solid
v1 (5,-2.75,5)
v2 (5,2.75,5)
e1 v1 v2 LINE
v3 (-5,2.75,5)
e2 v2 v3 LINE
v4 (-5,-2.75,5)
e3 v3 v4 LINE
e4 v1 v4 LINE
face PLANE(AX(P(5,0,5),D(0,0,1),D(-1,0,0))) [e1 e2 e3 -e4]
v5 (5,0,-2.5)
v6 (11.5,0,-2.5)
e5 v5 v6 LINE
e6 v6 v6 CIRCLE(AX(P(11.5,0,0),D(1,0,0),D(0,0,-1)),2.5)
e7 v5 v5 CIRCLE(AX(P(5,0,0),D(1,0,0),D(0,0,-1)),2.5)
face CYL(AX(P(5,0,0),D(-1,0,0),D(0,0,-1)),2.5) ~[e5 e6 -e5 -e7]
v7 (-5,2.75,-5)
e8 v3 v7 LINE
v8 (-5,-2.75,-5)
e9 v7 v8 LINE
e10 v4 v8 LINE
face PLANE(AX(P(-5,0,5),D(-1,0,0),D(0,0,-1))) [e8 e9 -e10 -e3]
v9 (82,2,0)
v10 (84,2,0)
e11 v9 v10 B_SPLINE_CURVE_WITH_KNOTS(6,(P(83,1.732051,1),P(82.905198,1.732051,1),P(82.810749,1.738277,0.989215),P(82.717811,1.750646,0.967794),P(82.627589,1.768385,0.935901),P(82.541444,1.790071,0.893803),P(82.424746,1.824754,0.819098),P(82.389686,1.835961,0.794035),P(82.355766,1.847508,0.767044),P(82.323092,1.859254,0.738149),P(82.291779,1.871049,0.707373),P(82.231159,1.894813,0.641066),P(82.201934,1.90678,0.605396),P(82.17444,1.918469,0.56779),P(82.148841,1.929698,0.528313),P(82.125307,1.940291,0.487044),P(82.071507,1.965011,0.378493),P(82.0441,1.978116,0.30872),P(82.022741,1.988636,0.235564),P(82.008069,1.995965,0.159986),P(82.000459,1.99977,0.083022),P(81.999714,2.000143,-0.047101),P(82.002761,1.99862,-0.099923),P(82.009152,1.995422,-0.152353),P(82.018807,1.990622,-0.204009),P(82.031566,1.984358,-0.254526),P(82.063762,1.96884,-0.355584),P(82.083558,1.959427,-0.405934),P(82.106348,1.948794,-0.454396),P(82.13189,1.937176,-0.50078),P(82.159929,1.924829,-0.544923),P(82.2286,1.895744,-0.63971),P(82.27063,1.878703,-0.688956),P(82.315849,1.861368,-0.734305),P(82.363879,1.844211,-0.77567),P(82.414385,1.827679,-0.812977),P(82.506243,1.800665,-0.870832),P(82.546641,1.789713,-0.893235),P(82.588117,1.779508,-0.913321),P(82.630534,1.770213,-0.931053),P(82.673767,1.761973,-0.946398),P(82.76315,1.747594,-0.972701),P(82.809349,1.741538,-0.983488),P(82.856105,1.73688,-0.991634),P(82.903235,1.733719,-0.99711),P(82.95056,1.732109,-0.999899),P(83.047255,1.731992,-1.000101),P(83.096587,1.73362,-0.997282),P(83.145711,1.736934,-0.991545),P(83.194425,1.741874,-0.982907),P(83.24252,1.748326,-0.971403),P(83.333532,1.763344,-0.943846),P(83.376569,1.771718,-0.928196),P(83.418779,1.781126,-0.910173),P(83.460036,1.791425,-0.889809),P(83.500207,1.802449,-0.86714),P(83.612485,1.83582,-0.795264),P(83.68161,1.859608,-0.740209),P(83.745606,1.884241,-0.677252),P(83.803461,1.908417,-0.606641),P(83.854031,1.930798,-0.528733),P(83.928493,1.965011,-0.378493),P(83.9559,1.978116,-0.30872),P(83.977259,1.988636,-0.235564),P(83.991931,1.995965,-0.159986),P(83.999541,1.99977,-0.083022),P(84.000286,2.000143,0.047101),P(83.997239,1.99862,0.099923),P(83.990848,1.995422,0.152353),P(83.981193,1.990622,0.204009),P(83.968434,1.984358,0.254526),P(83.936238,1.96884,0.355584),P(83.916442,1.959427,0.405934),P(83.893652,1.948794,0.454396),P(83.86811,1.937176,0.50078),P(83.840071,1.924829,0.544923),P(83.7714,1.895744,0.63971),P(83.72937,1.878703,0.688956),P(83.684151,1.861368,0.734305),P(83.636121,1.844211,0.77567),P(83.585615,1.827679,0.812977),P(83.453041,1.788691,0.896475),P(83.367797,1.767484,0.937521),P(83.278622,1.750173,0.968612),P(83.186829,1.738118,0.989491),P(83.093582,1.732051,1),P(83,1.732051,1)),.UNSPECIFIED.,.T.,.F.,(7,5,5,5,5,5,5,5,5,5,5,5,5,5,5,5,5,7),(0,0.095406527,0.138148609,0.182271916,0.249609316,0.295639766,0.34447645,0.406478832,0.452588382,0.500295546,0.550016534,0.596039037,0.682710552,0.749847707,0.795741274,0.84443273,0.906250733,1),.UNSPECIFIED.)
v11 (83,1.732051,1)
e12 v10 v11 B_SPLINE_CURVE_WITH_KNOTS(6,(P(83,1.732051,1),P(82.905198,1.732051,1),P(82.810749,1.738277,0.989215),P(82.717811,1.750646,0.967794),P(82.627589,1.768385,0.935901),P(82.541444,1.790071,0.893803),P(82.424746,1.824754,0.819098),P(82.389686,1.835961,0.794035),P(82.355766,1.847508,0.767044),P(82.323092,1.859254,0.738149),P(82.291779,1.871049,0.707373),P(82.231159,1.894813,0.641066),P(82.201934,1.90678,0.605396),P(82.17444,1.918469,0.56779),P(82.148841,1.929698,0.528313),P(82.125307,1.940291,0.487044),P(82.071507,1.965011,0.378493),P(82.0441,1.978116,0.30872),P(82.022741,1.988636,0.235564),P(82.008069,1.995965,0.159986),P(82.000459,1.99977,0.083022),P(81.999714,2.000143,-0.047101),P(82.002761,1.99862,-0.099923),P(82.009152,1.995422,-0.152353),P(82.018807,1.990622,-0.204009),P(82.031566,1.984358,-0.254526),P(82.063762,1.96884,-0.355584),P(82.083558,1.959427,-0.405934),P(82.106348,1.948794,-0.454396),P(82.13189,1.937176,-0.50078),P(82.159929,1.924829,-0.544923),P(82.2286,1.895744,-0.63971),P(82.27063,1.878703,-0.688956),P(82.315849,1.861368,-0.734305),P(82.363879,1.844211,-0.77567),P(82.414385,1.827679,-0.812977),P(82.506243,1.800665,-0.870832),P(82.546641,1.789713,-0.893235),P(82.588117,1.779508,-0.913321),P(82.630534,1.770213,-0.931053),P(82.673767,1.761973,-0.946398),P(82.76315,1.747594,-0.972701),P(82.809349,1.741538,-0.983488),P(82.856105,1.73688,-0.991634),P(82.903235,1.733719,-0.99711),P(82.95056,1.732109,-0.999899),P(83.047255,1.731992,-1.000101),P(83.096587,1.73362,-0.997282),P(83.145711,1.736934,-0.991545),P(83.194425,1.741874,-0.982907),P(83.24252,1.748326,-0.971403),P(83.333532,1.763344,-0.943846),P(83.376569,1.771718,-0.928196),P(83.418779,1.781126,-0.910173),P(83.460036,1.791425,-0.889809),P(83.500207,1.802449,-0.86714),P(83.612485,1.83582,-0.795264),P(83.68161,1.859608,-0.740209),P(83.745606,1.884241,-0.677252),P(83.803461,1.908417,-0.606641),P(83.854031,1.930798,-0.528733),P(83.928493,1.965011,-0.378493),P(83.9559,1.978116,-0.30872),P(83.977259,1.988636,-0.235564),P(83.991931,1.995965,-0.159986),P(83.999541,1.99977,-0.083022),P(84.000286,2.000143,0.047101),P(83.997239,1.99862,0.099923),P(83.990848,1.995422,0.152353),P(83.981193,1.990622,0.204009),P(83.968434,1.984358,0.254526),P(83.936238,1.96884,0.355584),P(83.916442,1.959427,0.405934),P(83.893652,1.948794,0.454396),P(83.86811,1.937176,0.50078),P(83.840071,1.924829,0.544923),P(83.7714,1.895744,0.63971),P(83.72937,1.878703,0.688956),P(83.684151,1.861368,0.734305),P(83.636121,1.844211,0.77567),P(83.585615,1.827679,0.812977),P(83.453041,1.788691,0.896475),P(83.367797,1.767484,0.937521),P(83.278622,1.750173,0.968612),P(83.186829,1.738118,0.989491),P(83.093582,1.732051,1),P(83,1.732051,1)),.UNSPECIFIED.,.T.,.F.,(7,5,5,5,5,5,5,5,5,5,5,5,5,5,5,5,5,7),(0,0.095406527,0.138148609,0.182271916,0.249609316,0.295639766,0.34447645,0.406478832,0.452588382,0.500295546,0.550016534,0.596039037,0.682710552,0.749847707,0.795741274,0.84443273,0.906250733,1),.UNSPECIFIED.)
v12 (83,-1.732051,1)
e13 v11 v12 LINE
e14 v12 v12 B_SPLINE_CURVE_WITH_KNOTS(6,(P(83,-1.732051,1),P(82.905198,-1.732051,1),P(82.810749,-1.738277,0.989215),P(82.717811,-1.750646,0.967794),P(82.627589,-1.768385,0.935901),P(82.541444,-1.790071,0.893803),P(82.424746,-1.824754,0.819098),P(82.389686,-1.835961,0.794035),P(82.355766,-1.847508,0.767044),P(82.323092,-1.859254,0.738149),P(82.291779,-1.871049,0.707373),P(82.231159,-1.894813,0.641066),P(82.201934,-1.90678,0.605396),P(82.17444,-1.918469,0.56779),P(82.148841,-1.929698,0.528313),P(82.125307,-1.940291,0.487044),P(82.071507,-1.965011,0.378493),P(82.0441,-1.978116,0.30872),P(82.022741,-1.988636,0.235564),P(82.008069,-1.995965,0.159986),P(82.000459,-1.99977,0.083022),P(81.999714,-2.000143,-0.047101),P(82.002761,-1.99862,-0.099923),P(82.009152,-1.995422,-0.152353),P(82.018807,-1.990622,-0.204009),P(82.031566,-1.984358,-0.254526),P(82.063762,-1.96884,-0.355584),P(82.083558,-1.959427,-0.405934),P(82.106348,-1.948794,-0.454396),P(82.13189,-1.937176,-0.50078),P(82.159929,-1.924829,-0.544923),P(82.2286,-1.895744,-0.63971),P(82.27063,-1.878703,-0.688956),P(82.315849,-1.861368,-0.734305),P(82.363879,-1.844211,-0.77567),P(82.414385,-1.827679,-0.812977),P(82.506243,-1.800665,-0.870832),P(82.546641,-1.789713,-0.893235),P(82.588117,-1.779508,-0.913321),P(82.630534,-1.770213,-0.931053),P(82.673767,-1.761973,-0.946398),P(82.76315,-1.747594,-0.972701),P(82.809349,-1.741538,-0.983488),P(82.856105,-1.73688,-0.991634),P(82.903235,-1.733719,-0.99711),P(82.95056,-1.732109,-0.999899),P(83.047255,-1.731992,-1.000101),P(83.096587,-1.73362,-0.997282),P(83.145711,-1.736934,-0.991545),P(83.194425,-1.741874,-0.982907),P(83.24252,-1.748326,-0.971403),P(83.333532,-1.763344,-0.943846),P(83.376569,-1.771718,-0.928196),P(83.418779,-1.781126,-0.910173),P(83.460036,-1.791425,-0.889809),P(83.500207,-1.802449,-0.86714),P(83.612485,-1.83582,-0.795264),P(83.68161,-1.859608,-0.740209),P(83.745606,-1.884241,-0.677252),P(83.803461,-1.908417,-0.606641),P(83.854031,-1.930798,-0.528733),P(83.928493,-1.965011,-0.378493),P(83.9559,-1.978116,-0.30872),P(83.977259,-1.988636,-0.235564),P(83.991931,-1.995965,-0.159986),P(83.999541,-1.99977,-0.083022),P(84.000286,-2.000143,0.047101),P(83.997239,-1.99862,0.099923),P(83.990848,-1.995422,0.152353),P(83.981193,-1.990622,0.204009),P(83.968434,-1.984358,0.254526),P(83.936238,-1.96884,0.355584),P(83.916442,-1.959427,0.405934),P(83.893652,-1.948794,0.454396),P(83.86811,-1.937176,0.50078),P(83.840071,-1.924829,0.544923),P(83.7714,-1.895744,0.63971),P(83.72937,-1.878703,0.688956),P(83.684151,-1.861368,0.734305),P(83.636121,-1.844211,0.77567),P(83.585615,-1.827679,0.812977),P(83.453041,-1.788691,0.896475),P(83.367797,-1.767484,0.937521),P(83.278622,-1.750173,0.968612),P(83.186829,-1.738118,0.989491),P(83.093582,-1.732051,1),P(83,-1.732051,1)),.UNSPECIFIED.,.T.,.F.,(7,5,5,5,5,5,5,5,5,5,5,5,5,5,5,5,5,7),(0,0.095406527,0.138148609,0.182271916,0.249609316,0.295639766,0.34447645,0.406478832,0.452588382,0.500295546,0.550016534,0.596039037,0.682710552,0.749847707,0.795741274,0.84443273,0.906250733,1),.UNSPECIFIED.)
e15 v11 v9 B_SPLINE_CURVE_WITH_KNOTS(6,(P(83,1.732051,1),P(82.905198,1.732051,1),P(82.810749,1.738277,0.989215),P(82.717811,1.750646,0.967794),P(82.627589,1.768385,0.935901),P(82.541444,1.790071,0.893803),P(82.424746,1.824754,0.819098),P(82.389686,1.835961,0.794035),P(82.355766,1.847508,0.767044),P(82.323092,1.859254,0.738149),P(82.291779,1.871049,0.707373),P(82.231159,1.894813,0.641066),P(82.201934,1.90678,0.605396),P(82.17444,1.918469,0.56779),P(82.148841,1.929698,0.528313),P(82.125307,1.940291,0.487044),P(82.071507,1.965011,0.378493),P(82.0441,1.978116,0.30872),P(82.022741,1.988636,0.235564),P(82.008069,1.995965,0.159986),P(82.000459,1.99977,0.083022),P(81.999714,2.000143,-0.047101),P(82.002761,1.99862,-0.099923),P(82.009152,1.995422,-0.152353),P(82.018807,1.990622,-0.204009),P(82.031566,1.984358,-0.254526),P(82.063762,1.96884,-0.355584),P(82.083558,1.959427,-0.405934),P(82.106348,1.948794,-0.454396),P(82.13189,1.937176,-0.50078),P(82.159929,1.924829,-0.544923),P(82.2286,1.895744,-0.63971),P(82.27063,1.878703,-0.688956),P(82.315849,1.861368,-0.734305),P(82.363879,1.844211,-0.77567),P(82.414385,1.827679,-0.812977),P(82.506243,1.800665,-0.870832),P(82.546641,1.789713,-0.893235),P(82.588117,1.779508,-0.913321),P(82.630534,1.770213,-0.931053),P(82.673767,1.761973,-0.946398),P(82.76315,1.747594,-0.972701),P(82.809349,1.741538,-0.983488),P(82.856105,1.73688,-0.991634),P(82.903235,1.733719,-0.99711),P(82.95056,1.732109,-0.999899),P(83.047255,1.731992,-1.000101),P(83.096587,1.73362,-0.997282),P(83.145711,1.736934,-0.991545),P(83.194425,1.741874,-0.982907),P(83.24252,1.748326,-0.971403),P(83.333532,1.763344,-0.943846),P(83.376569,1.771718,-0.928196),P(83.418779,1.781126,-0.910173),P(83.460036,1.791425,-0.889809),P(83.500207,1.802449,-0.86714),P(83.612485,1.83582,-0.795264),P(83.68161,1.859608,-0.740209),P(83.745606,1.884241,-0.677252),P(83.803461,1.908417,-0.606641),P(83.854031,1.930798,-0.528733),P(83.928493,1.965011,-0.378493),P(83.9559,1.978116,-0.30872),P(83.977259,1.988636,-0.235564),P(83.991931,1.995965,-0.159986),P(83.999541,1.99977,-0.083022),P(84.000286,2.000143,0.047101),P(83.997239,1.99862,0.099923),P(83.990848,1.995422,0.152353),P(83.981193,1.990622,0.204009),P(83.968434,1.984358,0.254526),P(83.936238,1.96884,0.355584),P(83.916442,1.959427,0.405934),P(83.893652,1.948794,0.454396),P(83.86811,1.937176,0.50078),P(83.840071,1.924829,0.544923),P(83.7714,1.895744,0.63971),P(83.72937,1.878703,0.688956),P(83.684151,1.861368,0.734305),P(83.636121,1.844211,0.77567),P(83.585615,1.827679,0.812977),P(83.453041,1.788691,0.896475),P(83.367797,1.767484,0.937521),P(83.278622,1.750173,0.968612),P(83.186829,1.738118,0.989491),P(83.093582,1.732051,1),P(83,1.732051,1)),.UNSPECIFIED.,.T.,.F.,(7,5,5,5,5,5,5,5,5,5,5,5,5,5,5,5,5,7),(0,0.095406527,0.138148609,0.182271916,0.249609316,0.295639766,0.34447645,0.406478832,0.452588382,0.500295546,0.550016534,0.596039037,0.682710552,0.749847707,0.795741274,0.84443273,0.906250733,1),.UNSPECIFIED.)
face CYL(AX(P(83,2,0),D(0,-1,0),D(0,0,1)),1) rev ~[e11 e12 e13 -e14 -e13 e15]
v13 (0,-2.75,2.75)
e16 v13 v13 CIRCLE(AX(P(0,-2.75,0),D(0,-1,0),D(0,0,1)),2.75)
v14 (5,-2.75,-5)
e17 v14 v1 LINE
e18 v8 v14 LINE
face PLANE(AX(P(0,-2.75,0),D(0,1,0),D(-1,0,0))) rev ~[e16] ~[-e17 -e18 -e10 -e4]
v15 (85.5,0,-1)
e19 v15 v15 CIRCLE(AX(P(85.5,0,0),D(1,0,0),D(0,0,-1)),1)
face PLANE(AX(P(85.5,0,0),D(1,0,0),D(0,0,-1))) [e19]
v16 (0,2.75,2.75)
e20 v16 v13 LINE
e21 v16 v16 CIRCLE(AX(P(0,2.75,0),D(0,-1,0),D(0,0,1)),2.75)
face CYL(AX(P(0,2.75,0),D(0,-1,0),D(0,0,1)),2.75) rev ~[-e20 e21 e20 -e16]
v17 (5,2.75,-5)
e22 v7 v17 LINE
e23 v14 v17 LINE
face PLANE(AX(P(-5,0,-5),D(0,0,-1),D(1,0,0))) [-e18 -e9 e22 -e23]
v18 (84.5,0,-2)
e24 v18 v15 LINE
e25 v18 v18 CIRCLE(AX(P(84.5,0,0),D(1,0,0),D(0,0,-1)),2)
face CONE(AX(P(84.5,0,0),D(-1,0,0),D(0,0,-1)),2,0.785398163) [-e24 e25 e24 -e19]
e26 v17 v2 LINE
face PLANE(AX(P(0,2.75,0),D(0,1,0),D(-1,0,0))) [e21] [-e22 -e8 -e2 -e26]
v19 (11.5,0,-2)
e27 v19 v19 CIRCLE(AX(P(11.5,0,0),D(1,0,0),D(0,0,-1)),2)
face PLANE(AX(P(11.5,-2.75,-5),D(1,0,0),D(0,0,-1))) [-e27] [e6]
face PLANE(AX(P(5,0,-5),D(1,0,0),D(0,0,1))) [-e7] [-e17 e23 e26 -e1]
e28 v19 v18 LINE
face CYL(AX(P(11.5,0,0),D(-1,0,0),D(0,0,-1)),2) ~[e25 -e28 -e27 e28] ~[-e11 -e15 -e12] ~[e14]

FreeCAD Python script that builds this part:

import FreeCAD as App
import Part
import Sketcher

V = App.Vector
Q = App.Units.Quantity


def edges_at(feature, points):
    """Names of the edges that pass closest to the given points."""
    edges = feature.Shape.Edges
    near = lambda p: min(range(len(edges)), key=lambda i: edges[i].distToShape(Part.Vertex(*p))[0])
    return sorted({f"Edge{near(p) + 1}" for p in points})

doc = App.newDocument("Part")
body = doc.addObject("PartDesign::Body", "Body")

# Sketch on XZ plane
sketch1 = body.newObject("Sketcher::SketchObject", "Sketch")
sketch1.AttachmentSupport = (doc.getObject("XZ_Plane"), [""])
sketch1.MapMode = "FlatFace"
sketch1.addGeometry([
    Part.LineSegment(V(-5, 5, 0), V(5, 5, 0)),
    Part.LineSegment(V(5, 5, 0), V(5, -5, 0)),
    Part.LineSegment(V(5, -5, 0), V(-5, -5, 0)),
    Part.LineSegment(V(-5, -5, 0), V(-5, 5, 0)),
], False)
sketch1.addConstraint([
    Sketcher.Constraint("Coincident", 0, 2, 1, 1),
    Sketcher.Constraint("Coincident", 1, 2, 2, 1),
    Sketcher.Constraint("Coincident", 2, 2, 3, 1),
    Sketcher.Constraint("Coincident", 3, 2, 0, 1),
    Sketcher.Constraint("Horizontal", 0),
    Sketcher.Constraint("Vertical", 1),
    Sketcher.Constraint("Horizontal", 2),
    Sketcher.Constraint("Vertical", 3),
    Sketcher.Constraint("Symmetric", 0, 2, 2, 2, -1, 1),
    Sketcher.Constraint("Equal", 2, 1),
    Sketcher.Constraint("DistanceX", 0, 1, 0, 2, Q("10 mm")),
])
pad1 = body.newObject("PartDesign::Pad", "Pad")
pad1.Profile = sketch1
pad1.Length = 5.5
pad1.Midplane = True

# Sketch on YZ plane
sketch2 = body.newObject("Sketcher::SketchObject", "Sketch001")
sketch2.AttachmentSupport = (doc.getObject("YZ_Plane"), [""])
sketch2.MapMode = "FlatFace"
sketch2.AttachmentOffset = App.Placement(V(0, 0, 5), App.Rotation())
sketch2.addGeometry(Part.Circle(V(0, 0, 0), V(0, 0, 1), 2.5), False)
sketch2.addConstraint([
    Sketcher.Constraint("Coincident", 0, 3, -1, 1),
    Sketcher.Constraint("Diameter", 0, Q("5 mm")),
])
pad2 = body.newObject("PartDesign::Pad", "Pad001")
pad2.Profile = sketch2
pad2.Length = 6.5

# Sketch on YZ plane
sketch3 = body.newObject("Sketcher::SketchObject", "Sketch002")
sketch3.AttachmentSupport = (doc.getObject("YZ_Plane"), [""])
sketch3.MapMode = "FlatFace"
sketch3.AttachmentOffset = App.Placement(V(0, 0, 11.5), App.Rotation())
sketch3.addGeometry(Part.Circle(V(0, 0, 0), V(0, 0, 1), 2), False)
sketch3.addConstraint([
    Sketcher.Constraint("Coincident", 0, 3, -1, 1),
    Sketcher.Constraint("Diameter", 0, Q("4 mm")),
])
pad3 = body.newObject("PartDesign::Pad", "Pad002")
pad3.Profile = sketch3
pad3.Length = 74

# Sketch on XZ plane
sketch4 = body.newObject("Sketcher::SketchObject", "Sketch003")
sketch4.AttachmentSupport = (doc.getObject("XZ_Plane"), [""])
sketch4.MapMode = "FlatFace"
sketch4.AttachmentOffset = App.Placement(V(0, 0, -2.75), App.Rotation())
sketch4.addGeometry(Part.Circle(V(0, 0, 0), V(0, 0, 1), 2.75), False)
sketch4.addConstraint([
    Sketcher.Constraint("Coincident", 0, 3, -1, 1),
    Sketcher.Constraint("Diameter", 0, Q("5.5 mm")),
])
doc.recompute()
hole = body.newObject("PartDesign::Hole", "Hole")
hole.Profile = sketch4
hole.ThreadType = "None"
hole.Diameter = 5.5
hole.DepthType = "Dimension"
hole.Depth = 5.5
hole.DrillPoint = "Flat"
hole.Reversed = True

# Sketch on XZ plane
sketch5 = body.newObject("Sketcher::SketchObject", "Sketch004")
sketch5.AttachmentSupport = (doc.getObject("XZ_Plane"), [""])
sketch5.MapMode = "FlatFace"
sketch5.AttachmentOffset = App.Placement(V(0, 0, -2), App.Rotation())
sketch5.addGeometry(Part.Circle(V(83, 0, 0), V(0, 0, 1), 1), False)
sketch5.addConstraint([
    Sketcher.Constraint("PointOnObject", 0, 3, -1),
    Sketcher.Constraint("Diameter", 0, Q("2 mm")),
    Sketcher.Constraint("DistanceX", -1, 1, 0, 3, Q("83 mm")),
])
doc.recompute()
hole2 = body.newObject("PartDesign::Hole", "Hole001")
hole2.Profile = sketch5
hole2.ThreadType = "None"
hole2.Diameter = 2
hole2.DepthType = "ThroughAll"
hole2.Reversed = True
doc.recompute()

chamfer = body.newObject("PartDesign::Chamfer", "Chamfer")
chamfer.Base = (hole2, edges_at(hole2, [(85.5, 0, 2)]))
chamfer.Size = 1

doc.recompute()
